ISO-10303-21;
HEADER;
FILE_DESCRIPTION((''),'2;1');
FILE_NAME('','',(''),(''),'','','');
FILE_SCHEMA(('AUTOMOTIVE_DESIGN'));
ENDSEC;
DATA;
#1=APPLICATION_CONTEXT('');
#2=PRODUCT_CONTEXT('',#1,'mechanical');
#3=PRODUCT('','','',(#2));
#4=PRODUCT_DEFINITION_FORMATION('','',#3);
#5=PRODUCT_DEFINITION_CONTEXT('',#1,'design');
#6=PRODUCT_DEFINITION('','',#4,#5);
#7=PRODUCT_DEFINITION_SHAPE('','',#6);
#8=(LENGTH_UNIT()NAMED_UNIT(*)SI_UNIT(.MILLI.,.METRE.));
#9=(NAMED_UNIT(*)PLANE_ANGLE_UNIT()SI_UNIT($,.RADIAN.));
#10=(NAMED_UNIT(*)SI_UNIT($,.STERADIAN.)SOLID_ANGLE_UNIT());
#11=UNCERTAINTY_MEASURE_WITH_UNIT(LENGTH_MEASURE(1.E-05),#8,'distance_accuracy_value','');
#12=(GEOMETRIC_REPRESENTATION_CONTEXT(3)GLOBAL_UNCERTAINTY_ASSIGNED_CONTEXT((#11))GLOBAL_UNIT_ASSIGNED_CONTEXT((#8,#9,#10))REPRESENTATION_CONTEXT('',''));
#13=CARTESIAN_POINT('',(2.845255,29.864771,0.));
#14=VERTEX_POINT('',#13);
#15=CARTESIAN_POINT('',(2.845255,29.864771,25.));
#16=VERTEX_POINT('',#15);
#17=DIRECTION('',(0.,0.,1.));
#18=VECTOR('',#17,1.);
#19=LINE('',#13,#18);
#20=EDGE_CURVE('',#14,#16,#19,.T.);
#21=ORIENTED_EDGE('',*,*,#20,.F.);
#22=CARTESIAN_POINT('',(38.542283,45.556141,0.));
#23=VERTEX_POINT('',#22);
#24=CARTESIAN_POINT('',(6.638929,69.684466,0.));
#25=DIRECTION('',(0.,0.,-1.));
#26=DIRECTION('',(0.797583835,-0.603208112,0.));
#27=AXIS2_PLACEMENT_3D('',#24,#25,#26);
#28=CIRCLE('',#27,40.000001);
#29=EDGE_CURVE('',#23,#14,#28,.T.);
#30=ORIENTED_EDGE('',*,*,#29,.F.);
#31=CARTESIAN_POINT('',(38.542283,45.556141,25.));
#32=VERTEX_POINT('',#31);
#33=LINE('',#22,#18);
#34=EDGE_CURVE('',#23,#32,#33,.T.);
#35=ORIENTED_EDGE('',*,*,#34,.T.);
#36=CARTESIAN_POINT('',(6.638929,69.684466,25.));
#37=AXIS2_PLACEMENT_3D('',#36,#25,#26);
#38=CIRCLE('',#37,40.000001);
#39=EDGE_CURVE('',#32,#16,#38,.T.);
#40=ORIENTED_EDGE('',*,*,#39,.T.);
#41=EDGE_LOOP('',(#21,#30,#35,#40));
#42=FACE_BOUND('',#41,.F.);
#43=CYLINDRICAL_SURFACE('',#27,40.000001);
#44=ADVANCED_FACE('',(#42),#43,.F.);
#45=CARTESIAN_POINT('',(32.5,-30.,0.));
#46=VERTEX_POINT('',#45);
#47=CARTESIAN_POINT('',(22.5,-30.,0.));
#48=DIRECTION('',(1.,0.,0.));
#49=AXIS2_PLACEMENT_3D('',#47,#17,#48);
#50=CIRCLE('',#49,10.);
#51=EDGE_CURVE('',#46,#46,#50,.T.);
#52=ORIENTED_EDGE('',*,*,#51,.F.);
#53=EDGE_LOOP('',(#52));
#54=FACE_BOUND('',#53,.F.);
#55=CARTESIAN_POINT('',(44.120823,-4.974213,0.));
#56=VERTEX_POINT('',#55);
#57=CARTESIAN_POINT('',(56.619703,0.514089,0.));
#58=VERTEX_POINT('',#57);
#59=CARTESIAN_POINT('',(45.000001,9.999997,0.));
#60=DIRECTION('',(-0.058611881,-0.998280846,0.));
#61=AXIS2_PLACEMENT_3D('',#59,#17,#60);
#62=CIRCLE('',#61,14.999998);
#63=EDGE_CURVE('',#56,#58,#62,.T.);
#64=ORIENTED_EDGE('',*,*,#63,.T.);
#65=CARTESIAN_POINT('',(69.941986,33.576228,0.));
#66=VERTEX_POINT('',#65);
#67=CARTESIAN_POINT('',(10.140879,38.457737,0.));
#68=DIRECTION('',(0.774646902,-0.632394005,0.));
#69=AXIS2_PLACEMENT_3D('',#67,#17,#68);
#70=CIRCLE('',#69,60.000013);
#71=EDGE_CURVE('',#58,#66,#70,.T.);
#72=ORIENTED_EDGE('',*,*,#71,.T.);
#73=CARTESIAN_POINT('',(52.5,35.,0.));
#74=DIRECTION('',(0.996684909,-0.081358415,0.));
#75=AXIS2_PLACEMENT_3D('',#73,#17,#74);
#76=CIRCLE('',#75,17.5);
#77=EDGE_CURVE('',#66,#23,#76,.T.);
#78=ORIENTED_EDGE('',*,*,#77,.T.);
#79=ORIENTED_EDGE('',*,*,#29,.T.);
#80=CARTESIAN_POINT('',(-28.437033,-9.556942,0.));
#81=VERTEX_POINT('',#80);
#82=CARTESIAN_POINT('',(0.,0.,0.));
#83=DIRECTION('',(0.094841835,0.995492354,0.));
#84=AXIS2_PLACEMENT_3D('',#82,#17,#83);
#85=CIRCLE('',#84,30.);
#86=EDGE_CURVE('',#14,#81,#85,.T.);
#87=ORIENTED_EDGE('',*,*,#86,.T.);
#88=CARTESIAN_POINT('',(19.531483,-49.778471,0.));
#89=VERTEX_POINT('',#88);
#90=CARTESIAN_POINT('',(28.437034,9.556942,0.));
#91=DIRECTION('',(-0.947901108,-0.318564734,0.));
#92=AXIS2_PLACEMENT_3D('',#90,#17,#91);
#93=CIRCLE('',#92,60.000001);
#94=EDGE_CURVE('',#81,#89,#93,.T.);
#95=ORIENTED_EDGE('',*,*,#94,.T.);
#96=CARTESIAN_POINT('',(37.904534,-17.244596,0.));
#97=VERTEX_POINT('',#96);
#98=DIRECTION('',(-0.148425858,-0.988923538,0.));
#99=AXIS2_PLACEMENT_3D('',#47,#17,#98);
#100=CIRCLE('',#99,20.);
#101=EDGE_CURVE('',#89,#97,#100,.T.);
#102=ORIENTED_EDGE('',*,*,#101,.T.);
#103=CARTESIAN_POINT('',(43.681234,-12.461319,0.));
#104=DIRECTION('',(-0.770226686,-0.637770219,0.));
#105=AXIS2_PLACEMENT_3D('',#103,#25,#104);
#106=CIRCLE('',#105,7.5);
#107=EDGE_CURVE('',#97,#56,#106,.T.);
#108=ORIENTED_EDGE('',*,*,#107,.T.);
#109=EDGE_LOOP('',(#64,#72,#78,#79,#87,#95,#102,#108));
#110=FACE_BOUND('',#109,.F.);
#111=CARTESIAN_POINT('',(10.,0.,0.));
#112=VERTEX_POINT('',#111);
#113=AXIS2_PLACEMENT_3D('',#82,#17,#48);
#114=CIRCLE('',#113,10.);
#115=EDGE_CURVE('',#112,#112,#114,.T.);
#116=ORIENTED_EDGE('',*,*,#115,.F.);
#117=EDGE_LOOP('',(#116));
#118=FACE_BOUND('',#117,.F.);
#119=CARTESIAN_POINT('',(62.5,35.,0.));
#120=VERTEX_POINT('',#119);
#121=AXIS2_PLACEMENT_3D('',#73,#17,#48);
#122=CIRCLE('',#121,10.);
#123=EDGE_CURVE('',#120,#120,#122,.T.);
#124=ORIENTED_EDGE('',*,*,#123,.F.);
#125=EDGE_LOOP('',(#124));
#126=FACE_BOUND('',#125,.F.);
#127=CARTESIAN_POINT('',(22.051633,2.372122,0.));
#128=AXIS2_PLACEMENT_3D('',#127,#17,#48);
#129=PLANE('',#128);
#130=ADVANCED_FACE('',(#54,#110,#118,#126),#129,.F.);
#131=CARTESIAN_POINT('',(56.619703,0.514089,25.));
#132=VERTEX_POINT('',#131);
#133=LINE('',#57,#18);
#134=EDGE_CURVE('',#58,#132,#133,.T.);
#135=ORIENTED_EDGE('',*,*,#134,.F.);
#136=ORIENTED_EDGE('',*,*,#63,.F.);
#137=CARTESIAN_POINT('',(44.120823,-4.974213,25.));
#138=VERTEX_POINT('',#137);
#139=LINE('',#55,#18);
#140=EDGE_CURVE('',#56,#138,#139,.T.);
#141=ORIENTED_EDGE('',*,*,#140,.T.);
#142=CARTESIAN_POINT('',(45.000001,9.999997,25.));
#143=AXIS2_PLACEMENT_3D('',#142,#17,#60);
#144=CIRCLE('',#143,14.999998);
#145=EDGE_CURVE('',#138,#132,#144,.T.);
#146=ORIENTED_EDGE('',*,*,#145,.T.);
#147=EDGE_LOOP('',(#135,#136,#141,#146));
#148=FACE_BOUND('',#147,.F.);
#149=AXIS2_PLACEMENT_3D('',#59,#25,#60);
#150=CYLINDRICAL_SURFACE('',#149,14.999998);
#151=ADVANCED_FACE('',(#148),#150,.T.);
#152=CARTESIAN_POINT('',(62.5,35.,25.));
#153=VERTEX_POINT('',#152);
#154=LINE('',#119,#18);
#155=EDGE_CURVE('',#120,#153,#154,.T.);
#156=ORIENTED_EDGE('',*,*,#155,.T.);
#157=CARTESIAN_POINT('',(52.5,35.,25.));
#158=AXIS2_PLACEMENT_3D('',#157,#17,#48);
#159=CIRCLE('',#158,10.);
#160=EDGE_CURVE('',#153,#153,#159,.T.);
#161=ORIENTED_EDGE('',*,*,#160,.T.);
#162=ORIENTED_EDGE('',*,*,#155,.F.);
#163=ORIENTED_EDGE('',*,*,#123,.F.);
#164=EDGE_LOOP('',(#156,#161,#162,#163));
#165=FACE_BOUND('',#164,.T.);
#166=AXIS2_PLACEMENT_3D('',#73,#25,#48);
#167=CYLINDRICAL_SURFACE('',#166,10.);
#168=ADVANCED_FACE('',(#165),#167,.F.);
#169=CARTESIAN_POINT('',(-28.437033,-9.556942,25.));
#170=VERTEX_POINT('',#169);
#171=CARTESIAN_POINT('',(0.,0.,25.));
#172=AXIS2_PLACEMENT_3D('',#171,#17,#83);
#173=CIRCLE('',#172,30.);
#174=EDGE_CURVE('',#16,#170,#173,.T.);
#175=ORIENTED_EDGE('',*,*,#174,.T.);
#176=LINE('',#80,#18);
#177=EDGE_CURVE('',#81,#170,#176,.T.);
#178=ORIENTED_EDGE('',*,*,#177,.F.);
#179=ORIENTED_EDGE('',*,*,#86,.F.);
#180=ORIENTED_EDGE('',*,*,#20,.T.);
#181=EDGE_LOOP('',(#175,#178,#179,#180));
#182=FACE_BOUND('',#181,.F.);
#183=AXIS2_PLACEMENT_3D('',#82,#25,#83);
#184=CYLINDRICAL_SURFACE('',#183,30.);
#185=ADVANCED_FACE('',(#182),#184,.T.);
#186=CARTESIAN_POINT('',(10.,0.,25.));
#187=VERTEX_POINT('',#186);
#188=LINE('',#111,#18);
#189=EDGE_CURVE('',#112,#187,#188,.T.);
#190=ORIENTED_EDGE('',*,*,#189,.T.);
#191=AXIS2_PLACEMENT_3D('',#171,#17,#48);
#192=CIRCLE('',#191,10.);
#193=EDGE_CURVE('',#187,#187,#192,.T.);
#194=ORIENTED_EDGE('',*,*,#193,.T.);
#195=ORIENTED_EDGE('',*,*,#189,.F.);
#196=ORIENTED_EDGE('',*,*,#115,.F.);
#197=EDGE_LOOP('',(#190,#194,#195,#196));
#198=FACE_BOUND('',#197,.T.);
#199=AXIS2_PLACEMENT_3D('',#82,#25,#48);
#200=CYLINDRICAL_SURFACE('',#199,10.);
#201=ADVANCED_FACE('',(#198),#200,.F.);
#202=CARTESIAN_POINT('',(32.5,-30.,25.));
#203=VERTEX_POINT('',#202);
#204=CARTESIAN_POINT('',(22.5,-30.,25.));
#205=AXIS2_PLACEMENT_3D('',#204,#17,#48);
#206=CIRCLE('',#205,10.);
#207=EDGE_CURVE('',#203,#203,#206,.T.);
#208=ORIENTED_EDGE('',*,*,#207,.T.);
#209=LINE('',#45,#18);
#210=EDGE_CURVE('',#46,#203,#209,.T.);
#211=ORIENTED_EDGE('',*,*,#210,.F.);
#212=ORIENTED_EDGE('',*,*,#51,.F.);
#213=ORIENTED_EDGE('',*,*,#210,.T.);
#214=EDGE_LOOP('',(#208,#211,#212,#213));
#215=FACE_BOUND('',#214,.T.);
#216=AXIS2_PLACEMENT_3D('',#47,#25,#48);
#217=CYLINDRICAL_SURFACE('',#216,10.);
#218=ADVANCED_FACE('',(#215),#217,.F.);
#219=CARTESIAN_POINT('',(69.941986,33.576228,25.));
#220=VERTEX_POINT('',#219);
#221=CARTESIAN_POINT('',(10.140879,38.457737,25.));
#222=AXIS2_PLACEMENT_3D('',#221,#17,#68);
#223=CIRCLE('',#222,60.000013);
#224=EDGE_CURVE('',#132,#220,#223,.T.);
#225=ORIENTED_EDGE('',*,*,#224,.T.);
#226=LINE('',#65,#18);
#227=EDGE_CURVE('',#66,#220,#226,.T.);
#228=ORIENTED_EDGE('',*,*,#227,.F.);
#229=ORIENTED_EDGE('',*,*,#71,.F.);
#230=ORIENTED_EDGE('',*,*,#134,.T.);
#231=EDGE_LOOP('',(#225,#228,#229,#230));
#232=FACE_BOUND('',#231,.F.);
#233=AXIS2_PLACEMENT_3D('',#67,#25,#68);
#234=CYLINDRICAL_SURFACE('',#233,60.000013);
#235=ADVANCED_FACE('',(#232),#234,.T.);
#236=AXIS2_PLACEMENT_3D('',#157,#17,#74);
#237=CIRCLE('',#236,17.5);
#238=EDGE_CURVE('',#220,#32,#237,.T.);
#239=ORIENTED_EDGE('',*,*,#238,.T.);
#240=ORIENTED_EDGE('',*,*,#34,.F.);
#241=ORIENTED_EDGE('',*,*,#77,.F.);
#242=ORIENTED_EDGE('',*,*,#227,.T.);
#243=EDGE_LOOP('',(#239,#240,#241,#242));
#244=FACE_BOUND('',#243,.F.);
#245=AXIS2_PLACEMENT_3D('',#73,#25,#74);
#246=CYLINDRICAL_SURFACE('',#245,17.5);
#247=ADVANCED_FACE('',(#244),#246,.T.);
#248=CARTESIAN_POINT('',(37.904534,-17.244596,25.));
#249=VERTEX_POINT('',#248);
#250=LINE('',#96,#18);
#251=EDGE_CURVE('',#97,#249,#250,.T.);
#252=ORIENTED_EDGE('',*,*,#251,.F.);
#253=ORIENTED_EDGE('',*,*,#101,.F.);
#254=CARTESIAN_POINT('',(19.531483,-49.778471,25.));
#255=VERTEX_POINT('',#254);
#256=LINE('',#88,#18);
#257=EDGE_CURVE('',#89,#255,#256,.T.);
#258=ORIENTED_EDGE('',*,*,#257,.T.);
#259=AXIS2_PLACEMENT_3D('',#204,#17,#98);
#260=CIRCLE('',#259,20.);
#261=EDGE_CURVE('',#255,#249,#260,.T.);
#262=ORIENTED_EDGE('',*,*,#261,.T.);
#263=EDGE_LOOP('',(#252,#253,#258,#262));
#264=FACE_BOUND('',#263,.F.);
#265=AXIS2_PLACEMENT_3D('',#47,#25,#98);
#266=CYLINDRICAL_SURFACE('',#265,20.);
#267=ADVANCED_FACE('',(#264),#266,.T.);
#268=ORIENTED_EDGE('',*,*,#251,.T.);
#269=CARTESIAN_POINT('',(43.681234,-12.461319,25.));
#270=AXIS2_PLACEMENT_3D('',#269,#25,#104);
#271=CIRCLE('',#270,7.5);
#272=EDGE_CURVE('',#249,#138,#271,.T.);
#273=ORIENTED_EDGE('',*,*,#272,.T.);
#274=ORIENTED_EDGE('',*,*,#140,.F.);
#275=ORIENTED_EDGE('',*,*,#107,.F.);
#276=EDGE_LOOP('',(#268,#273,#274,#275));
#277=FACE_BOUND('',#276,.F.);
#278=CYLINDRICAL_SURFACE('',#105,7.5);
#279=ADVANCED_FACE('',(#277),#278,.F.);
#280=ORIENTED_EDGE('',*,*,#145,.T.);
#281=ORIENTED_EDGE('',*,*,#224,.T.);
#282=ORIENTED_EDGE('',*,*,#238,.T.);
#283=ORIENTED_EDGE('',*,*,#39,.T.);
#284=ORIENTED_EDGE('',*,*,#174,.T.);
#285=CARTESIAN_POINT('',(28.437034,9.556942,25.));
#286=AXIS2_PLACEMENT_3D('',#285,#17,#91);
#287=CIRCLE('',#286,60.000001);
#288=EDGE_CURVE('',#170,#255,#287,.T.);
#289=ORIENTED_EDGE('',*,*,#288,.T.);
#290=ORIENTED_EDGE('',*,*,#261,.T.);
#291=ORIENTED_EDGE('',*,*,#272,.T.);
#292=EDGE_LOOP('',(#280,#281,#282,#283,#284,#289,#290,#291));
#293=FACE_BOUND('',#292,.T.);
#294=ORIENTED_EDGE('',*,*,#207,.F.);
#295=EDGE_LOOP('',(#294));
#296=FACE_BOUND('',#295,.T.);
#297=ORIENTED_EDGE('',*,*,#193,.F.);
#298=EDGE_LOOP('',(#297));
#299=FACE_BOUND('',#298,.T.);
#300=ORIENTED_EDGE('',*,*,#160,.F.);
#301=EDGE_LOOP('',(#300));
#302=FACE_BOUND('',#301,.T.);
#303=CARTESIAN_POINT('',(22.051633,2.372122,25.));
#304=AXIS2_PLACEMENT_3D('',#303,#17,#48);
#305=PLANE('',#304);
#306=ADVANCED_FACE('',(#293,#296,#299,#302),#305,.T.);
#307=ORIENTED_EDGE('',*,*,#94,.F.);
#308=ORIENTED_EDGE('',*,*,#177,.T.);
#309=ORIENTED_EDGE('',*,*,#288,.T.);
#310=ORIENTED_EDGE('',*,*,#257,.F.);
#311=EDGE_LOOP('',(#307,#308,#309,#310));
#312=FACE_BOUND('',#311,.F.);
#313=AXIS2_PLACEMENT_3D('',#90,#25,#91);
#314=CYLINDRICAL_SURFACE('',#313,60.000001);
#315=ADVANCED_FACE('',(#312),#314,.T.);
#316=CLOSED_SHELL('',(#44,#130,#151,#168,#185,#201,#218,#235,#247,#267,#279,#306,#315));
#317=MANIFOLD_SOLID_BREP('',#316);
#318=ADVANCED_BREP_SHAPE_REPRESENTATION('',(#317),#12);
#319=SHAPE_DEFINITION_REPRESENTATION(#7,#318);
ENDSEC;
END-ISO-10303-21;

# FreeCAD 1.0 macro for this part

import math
import FreeCAD as App
import Part
import Sketcher
Q = App.Units.Quantity

doc = App.newDocument("Part")
body = doc.addObject("PartDesign::Body", "Body")

# Sketch on XY plane
sketch1 = body.newObject("Sketcher::SketchObject", "Sketch")
sketch1.AttachmentSupport = (doc.getObject("XY_Plane"), [""])
sketch1.MapMode = "FlatFace"
sketch1.addGeometry([
    Part.ArcOfCircle(Part.Circle(App.Vector(7, 70, 0), App.Vector(0, 0, 1), 40), math.radians(-95), math.radians(-37)),  # 0
    Part.ArcOfCircle(Part.Circle(App.Vector(0, 0, 0), App.Vector(0, 0, 1), 30), math.radians(85), math.radians(199)),  # 1
    Part.ArcOfCircle(Part.Circle(App.Vector(28, 10, 0), App.Vector(0, 0, 1), 60), math.radians(-161), math.radians(-99)),  # 2
    Part.ArcOfCircle(Part.Circle(App.Vector(23, -30, 0), App.Vector(0, 0, 1), 20), math.radians(-99), math.radians(40)),  # 3
    Part.ArcOfCircle(Part.Circle(App.Vector(44, -12, 0), App.Vector(0, 0, 1), 7), math.radians(87), math.radians(220)),  # 4
    Part.ArcOfCircle(Part.Circle(App.Vector(45, 10, 0), App.Vector(0, 0, 1), 15), math.radians(-93), math.radians(-39)),  # 5
    Part.ArcOfCircle(Part.Circle(App.Vector(10, 38, 0), App.Vector(0, 0, 1), 60), math.radians(-39), math.radians(-5)),  # 6
    Part.ArcOfCircle(Part.Circle(App.Vector(53, 35, 0), App.Vector(0, 0, 1), 17), math.radians(-5), math.radians(143)),  # 7
    Part.Circle(App.Vector(22, -30, 0), App.Vector(0, 0, 1), 10),  # 8
    Part.Circle(App.Vector(0, 0, 0), App.Vector(0, 0, 1), 10),  # 9
    Part.Circle(App.Vector(52, 35, 0), App.Vector(0, 0, 1), 10),  # 10
], False)
sketch1.addConstraint([
    Sketcher.Constraint("Tangent", 0, 1, 1, 1),
    Sketcher.Constraint("Tangent", 1, 2, 2, 1),
    Sketcher.Constraint("Tangent", 2, 2, 3, 1),
    Sketcher.Constraint("Tangent", 3, 2, 4, 2),
    Sketcher.Constraint("Tangent", 4, 1, 5, 1),
    Sketcher.Constraint("Tangent", 5, 2, 6, 1),
    Sketcher.Constraint("Tangent", 6, 2, 7, 1),
    Sketcher.Constraint("Tangent", 7, 2, 0, 2),
    Sketcher.Constraint("Coincident", 1, 3, -1, 1),
    Sketcher.Constraint("Coincident", 9, 3, -1, 1),
    Sketcher.Constraint("Coincident", 8, 3, 3, 3),
    Sketcher.Constraint("Coincident", 10, 3, 7, 3),
    Sketcher.Constraint("Equal", 8, 9),
    Sketcher.Constraint("Equal", 9, 10),
    Sketcher.Constraint("Diameter", 8, Q("20 mm")),
    Sketcher.Constraint("Radius", 0, Q("40.000001 mm")),
    Sketcher.Constraint("Radius", 1, Q("30 mm")),
    Sketcher.Constraint("Radius", 2, Q("60.000001 mm")),
    Sketcher.Constraint("Radius", 3, Q("20 mm")),
    Sketcher.Constraint("Radius", 4, Q("7.5 mm")),
    Sketcher.Constraint("Radius", 7, Q("17.5 mm")),
    Sketcher.Constraint("DistanceY", 3, 3, -1, 1, Q("30 mm")),
    Sketcher.Constraint("DistanceX", -1, 1, 5, 3, Q("45.000001 mm")),
    Sketcher.Constraint("DistanceY", -1, 1, 7, 3, Q("35 mm")),
    Sketcher.Constraint("DistanceX", -1, 1, 3, 3, Q("22.5 mm")),
    Sketcher.Constraint("DistanceX", -1, 1, 7, 3, Q("52.5 mm")),
    Sketcher.Constraint("Radius", 5, Q("14.999998 mm")),
    Sketcher.Constraint("Radius", 6, Q("60.000013 mm")),
    Sketcher.Constraint("DistanceX", 2, 3, 4, 3, Q("15.2442 mm")),
])
pad1 = body.newObject("PartDesign::Pad", "Pad")
pad1.Profile = sketch1
pad1.Length = 25

doc.recompute()
